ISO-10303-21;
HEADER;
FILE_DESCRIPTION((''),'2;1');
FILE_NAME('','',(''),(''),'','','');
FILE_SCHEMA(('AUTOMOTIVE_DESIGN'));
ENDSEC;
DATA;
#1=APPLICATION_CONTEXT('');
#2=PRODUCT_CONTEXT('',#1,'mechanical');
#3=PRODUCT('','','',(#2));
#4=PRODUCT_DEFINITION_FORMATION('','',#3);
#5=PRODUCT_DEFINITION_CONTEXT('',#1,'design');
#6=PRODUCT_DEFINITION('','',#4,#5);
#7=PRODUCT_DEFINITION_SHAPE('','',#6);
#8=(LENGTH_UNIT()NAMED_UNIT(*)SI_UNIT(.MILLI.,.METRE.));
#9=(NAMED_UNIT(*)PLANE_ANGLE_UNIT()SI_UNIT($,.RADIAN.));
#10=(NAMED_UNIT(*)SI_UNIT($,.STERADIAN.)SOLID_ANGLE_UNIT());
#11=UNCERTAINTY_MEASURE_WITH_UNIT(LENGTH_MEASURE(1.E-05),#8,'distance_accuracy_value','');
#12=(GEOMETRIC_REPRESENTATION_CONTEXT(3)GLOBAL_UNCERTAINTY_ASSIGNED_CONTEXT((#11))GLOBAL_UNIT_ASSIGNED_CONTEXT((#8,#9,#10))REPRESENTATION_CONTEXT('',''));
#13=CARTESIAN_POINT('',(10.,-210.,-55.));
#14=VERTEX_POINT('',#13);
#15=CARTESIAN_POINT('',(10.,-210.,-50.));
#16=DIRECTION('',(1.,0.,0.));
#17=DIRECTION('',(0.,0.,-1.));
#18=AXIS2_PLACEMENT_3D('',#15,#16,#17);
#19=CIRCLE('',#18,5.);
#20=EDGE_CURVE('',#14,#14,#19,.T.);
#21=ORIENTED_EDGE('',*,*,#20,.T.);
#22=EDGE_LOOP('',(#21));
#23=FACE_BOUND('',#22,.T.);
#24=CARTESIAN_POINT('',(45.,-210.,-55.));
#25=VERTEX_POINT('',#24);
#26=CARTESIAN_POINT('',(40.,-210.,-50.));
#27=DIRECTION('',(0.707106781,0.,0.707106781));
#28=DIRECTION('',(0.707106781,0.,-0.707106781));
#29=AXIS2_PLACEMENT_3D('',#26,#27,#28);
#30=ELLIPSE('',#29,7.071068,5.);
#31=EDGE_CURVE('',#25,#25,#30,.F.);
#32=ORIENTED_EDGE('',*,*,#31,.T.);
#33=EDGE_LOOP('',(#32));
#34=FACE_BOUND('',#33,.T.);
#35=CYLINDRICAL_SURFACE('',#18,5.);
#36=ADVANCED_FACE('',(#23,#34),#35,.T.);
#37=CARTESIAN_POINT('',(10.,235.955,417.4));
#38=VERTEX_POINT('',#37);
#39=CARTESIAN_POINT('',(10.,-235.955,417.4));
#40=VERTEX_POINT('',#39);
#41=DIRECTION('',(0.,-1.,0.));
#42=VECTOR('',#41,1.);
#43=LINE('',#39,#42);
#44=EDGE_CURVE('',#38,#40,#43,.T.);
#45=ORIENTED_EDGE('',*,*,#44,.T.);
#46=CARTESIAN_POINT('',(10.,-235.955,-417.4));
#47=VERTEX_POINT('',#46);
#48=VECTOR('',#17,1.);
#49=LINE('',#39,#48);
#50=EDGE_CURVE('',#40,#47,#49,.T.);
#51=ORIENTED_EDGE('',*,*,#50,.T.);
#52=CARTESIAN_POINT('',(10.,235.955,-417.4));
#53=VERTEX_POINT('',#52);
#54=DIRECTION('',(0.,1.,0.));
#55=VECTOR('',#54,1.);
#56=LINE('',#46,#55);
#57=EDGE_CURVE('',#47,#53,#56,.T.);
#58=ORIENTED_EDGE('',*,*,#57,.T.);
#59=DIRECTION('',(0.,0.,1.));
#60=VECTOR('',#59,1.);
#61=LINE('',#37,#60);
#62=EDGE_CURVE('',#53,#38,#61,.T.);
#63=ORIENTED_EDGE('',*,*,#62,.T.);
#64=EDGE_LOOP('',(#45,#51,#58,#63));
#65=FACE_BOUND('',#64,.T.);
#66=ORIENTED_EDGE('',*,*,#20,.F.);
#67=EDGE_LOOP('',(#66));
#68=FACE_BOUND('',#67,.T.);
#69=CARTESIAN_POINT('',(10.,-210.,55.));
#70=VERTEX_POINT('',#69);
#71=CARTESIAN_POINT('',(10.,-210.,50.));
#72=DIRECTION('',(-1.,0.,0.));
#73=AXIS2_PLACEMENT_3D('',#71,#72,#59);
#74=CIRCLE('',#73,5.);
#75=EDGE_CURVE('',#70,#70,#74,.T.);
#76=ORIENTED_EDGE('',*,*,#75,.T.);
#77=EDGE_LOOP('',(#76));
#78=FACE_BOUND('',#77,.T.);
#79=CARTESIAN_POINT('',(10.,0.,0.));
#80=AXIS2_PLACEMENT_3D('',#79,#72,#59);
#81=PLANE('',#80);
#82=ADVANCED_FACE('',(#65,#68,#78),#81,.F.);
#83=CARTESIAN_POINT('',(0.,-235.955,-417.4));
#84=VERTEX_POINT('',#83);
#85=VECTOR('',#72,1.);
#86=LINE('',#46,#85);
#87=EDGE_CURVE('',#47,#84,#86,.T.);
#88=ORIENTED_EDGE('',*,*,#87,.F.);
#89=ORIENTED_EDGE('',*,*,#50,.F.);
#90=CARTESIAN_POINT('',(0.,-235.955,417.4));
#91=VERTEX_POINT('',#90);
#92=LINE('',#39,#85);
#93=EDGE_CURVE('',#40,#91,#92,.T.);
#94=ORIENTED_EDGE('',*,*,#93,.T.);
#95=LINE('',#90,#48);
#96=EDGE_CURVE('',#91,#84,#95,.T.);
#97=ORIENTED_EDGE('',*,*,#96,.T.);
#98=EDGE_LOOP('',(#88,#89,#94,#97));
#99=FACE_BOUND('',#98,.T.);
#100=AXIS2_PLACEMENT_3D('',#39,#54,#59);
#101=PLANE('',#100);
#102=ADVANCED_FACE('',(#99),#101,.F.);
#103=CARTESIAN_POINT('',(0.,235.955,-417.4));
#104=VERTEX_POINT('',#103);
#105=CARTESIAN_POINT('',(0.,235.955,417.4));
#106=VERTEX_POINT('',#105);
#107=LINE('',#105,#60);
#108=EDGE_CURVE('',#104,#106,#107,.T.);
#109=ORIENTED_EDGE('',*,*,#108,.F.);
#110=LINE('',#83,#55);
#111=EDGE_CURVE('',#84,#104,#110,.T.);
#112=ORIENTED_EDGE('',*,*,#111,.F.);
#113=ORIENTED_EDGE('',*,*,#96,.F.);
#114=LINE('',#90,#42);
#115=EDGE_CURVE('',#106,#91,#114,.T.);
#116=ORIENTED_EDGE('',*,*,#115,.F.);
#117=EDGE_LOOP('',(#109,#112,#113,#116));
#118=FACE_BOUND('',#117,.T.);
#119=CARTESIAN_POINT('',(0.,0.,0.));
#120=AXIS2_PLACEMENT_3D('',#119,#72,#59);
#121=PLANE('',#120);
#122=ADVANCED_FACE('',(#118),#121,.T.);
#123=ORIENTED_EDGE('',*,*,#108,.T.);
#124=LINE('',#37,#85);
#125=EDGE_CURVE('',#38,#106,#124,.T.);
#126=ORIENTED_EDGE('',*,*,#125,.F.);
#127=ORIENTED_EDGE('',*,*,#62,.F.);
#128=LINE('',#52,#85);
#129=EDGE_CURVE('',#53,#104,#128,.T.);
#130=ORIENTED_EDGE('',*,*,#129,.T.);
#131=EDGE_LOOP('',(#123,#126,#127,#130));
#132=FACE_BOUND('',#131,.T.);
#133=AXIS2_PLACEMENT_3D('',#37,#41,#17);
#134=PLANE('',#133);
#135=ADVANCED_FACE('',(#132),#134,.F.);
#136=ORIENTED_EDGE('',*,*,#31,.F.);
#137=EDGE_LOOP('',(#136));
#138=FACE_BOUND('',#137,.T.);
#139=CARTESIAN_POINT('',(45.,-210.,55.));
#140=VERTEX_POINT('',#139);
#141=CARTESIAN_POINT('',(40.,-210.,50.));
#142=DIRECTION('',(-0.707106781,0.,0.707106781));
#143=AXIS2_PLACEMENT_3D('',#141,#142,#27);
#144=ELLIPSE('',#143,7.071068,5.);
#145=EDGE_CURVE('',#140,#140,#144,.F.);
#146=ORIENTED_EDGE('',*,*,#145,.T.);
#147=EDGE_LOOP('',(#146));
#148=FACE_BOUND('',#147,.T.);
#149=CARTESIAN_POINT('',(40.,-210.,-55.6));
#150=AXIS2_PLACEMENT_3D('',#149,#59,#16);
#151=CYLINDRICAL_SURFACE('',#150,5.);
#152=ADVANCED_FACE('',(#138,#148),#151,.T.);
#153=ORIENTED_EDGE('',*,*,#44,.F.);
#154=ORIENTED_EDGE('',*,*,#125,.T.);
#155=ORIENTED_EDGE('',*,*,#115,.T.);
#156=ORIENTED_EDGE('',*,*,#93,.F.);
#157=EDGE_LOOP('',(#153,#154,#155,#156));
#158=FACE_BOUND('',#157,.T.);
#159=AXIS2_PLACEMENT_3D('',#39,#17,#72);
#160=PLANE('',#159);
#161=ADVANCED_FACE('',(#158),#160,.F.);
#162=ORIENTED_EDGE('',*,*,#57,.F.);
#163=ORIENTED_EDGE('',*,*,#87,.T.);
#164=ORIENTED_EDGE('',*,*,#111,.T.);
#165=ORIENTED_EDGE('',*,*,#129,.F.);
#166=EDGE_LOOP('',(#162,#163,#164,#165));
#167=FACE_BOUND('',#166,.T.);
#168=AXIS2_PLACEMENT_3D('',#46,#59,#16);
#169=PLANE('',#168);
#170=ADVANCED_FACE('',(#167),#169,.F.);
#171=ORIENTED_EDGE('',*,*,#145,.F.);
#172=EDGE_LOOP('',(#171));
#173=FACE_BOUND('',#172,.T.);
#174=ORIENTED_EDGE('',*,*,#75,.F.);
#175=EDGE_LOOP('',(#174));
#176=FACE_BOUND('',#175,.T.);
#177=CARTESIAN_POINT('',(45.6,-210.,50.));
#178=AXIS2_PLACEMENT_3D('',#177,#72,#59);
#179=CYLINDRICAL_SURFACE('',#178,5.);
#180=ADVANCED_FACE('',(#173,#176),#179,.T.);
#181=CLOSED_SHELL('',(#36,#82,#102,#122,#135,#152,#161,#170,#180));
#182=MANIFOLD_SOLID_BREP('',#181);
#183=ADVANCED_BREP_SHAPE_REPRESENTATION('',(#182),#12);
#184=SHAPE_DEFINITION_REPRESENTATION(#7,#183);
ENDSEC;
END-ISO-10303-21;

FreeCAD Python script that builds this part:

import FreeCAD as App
import Part
import Sketcher

V = App.Vector


def add_polygon(sketch, points):
    """Adds a closed chain of lines whose ends are joined by coincident constraints."""
    first, n = sketch.GeometryCount, len(points)
    for a, b in zip(points, points[1:] + points[:1]):
        sketch.addGeometry(Part.LineSegment(App.Vector(*a, 0), App.Vector(*b, 0)), False)
    for i in range(n):
        sketch.addConstraint(Sketcher.Constraint("Coincident", first + i, 2, first + (i + 1) % n, 1))

doc = App.newDocument("Part")
params = doc.addObject("Spreadsheet::Sheet", "Params")
for row, (alias, value) in enumerate([
    ("sketch1_height", "834.8 mm"),
    ("sketch1_width", "471.91 mm"),
    ("pad1_length", "10 mm"),
    ("sketch2_diameter", "10 mm"),
    ("sketch3_width", "30 mm"),
    ("sketch3_height", "100 mm"),
], start=1):
    params.set(f"A{row}", alias)
    params.set(f"B{row}", "=" + value)
    params.setAlias(f"B{row}", alias)

body = doc.addObject("PartDesign::Body", "Body")

sketch1 = body.newObject("Sketcher::SketchObject", "Sketch")
sketch1.AttachmentSupport = (doc.getObject("YZ_Plane"), [""])
sketch1.MapMode = "FlatFace"
add_polygon(sketch1, [(236, 417), (-236, 417), (-236, -417), (236, -417)])
sketch1.addConstraint([
    Sketcher.Constraint("Horizontal", 0),
    Sketcher.Constraint("Vertical", 1),
    Sketcher.Constraint("Horizontal", 2),
    Sketcher.Constraint("Vertical", 3),
    Sketcher.Constraint("Symmetric", 0, 2, 2, 2, -1, 1),
    Sketcher.Constraint("DistanceY", 1, 2, 1, 1, 834.8),
    Sketcher.Constraint("DistanceX", 0, 2, 0, 1, 471.91),
])
sketch1.setExpression("Constraints[9]", "Params.sketch1_height")
sketch1.setExpression("Constraints[10]", "Params.sketch1_width")
pad1 = body.newObject("PartDesign::Pad", "Pad")
pad1.Profile = sketch1
pad1.setExpression("Length", "Params.pad1_length")

sketch2 = body.newObject("Sketcher::SketchObject", "Sketch001")
sketch2.AttachmentSupport = (doc.getObject("YZ_Plane"), [""])
sketch2.MapMode = "FlatFace"
sketch2.AttachmentOffset = App.Placement(V(0, 0, 10), App.Rotation())
sketch2.addGeometry(Part.Circle(V(-210, -50, 0), V(0, 0, 1), 5), False)
sketch2.addConstraint([
    Sketcher.Constraint("Diameter", 0, 10.0),
    Sketcher.Constraint("DistanceX", 0, 3, -1, 1, 210.0),
    Sketcher.Constraint("DistanceY", 0, 3, -1, 1, 50.0),
])
sketch2.setExpression("Constraints[0]", "Params.sketch2_diameter")

sketch3 = body.newObject("Sketcher::SketchObject", "Sketch002")
sketch3.AttachmentSupport = (doc.getObject("XZ_Plane"), [""])
sketch3.MapMode = "FlatFace"
sketch3.AttachmentOffset = App.Placement(V(0, 0, 210), App.Rotation())
sketch3.addGeometry([
    Part.LineSegment(V(10, -50, 0), V(40, -50, 0)),
    Part.LineSegment(V(40, -50, 0), V(40, 50, 0)),
    Part.LineSegment(V(40, 50, 0), V(10, 50, 0)),
], False)
sketch3.addConstraint([
    Sketcher.Constraint("Coincident", 0, 2, 1, 1),
    Sketcher.Constraint("Coincident", 1, 2, 2, 1),
    Sketcher.Constraint("Horizontal", 0),
    Sketcher.Constraint("Vertical", 1),
    Sketcher.Constraint("Horizontal", 2),
    Sketcher.Constraint("Symmetric", 0, 1, 2, 2, -1),
    Sketcher.Constraint("DistanceX", 0, 1, 0, 2, 30.0),
    Sketcher.Constraint("DistanceY", 1, 1, 1, 2, 100.0),
    Sketcher.Constraint("DistanceX", -1, 1, 0, 1, 10.0),
])
sketch3.setExpression("Constraints[6]", "Params.sketch3_width")
sketch3.setExpression("Constraints[7]", "Params.sketch3_height")
doc.recompute()

additivepipe = body.newObject("PartDesign::AdditivePipe", "AdditivePipe")
additivepipe.Profile = sketch2
additivepipe.Spine = (sketch3, ["Edge1", "Edge2", "Edge3"])
additivepipe.Transition = "Right corner"

doc.recompute()
